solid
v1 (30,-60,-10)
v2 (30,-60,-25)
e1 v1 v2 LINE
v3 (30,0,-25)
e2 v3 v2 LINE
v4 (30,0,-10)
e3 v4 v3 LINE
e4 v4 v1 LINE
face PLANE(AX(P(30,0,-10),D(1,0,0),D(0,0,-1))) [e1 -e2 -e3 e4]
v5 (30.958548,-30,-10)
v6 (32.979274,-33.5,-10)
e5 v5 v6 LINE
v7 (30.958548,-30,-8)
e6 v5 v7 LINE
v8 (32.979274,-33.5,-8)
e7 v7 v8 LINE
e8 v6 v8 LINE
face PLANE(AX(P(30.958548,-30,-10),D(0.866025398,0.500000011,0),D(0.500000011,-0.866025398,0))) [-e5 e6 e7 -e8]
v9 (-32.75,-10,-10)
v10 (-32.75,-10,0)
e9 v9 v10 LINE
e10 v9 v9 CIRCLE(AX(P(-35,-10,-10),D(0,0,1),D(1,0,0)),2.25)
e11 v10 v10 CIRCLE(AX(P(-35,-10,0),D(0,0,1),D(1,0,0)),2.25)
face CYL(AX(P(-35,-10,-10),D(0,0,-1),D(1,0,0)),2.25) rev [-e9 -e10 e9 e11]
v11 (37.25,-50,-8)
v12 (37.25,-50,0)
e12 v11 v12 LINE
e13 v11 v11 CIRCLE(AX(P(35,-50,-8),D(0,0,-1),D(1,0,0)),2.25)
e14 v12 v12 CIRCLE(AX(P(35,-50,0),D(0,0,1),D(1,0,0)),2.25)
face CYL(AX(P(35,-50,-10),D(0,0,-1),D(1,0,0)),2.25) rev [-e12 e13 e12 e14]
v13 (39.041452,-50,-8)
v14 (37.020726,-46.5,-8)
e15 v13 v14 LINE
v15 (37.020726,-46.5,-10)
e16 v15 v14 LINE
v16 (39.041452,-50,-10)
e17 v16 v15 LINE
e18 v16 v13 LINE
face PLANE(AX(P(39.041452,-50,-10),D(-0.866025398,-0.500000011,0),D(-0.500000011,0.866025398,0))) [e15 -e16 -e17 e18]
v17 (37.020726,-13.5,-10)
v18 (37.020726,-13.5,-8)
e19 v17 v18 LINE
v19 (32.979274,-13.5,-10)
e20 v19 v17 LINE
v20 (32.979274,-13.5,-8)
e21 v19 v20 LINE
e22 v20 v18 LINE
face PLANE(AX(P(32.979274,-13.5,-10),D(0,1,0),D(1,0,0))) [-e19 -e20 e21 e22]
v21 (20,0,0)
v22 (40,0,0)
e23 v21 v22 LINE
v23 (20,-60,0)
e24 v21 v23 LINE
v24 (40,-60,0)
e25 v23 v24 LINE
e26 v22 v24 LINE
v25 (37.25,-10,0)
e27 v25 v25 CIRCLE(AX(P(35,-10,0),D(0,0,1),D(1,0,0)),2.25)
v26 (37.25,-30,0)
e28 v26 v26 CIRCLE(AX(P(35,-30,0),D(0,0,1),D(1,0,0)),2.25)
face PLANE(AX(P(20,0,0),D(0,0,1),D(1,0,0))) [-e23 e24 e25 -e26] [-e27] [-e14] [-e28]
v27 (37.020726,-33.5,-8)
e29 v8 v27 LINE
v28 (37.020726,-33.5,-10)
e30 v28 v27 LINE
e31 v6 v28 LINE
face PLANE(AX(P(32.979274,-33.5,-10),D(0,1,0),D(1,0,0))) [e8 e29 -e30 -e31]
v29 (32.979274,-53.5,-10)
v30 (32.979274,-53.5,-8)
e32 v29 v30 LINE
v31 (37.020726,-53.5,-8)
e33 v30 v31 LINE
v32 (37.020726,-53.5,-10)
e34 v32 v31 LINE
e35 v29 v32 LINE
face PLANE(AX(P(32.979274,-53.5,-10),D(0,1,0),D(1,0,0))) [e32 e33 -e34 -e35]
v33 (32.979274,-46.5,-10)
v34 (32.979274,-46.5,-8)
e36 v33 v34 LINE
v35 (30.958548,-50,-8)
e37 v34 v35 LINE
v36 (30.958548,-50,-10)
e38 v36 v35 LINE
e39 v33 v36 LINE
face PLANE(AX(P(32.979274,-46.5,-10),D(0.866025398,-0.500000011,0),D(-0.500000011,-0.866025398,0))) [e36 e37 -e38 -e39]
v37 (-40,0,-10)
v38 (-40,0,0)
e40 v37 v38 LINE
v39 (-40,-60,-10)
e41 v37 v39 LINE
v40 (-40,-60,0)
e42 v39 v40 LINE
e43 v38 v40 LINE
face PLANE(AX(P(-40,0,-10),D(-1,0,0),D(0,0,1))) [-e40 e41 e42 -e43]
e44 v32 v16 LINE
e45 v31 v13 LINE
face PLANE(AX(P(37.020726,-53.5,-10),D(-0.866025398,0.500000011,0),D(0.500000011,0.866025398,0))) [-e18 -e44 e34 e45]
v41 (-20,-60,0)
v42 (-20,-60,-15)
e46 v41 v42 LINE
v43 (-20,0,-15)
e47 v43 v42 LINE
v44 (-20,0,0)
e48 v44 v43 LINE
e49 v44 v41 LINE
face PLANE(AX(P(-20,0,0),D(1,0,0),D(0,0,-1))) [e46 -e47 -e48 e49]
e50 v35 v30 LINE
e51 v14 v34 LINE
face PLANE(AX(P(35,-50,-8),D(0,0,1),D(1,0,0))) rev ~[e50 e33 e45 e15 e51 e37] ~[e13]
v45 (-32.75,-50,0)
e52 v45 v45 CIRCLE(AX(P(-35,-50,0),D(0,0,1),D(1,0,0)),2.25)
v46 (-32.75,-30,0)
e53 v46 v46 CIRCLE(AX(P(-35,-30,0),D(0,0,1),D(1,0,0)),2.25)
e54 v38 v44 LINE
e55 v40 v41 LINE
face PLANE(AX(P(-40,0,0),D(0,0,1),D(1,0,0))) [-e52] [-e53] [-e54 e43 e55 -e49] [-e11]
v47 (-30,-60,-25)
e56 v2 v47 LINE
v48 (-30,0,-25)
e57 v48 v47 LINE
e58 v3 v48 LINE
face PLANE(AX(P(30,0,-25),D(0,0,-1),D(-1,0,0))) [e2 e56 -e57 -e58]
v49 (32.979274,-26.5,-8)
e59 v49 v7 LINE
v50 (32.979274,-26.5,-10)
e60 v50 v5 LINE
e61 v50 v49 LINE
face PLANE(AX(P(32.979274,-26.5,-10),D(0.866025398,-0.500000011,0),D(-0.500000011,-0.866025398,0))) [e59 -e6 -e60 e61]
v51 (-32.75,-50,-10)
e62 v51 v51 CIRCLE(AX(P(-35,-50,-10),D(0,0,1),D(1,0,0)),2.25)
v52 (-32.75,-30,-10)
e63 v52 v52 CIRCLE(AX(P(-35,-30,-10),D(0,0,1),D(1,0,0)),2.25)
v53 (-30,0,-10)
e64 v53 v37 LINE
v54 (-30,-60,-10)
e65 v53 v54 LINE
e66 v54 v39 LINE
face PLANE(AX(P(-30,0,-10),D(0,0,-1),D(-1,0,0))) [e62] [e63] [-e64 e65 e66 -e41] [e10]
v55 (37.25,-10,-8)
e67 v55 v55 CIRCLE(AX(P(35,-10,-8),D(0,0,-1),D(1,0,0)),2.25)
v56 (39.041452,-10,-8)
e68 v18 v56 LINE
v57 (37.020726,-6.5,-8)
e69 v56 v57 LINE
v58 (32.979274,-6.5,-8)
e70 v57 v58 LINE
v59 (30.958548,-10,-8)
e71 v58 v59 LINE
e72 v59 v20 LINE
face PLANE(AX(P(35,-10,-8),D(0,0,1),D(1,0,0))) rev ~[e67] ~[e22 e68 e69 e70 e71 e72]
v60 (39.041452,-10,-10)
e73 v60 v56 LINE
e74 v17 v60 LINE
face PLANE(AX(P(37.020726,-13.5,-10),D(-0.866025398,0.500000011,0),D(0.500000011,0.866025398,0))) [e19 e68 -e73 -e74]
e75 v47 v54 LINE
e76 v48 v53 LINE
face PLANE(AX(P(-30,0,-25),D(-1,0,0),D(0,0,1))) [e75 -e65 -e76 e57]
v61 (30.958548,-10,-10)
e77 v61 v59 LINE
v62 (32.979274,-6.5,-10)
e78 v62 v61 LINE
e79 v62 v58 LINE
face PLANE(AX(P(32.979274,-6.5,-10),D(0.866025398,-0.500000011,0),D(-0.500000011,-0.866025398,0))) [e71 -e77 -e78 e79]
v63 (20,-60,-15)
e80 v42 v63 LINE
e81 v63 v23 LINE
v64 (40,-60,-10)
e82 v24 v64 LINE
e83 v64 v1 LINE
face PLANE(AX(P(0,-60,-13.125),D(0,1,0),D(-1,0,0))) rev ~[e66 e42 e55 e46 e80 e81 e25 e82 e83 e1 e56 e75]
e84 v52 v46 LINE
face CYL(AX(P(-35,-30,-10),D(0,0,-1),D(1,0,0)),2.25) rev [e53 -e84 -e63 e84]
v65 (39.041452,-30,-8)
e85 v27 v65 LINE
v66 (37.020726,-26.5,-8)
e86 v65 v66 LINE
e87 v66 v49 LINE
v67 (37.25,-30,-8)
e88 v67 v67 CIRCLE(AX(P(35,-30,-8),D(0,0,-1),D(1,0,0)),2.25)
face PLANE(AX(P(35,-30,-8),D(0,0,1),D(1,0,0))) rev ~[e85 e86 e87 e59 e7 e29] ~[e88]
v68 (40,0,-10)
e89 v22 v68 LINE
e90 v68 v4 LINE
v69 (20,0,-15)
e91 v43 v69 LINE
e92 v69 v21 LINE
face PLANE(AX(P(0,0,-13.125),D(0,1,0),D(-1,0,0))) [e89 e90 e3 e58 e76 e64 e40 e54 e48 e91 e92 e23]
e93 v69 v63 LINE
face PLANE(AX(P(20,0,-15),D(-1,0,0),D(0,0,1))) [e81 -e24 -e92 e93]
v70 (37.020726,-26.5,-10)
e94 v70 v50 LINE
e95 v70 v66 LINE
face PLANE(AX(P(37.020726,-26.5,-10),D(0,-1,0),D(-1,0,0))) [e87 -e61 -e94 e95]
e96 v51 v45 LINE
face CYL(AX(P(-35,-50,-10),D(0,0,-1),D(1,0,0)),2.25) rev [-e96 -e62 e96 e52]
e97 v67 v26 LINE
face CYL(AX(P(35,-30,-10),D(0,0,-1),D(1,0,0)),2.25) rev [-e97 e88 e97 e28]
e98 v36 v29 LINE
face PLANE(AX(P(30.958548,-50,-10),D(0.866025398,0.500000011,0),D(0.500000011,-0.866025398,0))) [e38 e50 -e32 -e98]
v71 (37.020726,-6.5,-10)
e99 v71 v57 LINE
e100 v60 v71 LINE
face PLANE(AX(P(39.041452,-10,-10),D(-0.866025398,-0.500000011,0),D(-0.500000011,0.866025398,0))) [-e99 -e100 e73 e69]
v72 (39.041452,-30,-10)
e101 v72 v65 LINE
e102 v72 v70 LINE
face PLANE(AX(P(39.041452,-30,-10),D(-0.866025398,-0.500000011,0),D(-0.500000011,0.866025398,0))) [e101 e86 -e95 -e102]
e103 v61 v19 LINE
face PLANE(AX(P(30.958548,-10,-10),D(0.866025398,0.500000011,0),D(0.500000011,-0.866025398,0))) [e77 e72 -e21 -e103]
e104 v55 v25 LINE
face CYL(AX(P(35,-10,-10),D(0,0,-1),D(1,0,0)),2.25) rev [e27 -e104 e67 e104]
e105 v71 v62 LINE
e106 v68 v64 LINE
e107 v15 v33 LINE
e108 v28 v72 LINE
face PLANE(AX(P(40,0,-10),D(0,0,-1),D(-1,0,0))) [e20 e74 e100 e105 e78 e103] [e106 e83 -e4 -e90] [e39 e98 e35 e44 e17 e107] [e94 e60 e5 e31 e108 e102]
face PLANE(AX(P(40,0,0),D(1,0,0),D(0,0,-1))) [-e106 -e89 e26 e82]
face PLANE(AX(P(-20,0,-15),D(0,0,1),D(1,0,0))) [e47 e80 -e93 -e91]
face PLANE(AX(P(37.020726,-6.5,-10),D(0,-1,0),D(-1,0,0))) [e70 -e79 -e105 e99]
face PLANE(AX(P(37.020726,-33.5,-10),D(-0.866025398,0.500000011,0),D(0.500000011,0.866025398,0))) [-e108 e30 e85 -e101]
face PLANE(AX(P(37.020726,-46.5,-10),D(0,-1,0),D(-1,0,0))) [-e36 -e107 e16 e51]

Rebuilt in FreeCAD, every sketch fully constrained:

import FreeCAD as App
import Part
import Sketcher
Q = App.Units.Quantity

doc = App.newDocument("Part")
body = doc.addObject("PartDesign::Body", "Body")

# Sketch on XZ plane
sketch1 = body.newObject("Sketcher::SketchObject", "Sketch")
sketch1.AttachmentSupport = (doc.getObject("XZ_Plane"), [""])
sketch1.MapMode = "FlatFace"
sketch1.addGeometry([
    Part.LineSegment(App.Vector(-20, 0, 0), App.Vector(-40, 0, 0)),  # 0
    Part.LineSegment(App.Vector(-40, 0, 0), App.Vector(-40, -10, 0)),  # 1
    Part.LineSegment(App.Vector(-40, -10, 0), App.Vector(-30, -10, 0)),  # 2
    Part.LineSegment(App.Vector(-30, -10, 0), App.Vector(-30, -25, 0)),  # 3
    Part.LineSegment(App.Vector(-30, -25, 0), App.Vector(30, -25, 0)),  # 4
    Part.LineSegment(App.Vector(30, -25, 0), App.Vector(30, -10, 0)),  # 5
    Part.LineSegment(App.Vector(30, -10, 0), App.Vector(40, -10, 0)),  # 6
    Part.LineSegment(App.Vector(40, -10, 0), App.Vector(40, 0, 0)),  # 7
    Part.LineSegment(App.Vector(40, 0, 0), App.Vector(20, 0, 0)),  # 8
    Part.LineSegment(App.Vector(20, 0, 0), App.Vector(20, -15, 0)),  # 9
    Part.LineSegment(App.Vector(20, -15, 0), App.Vector(-20, -15, 0)),  # 10
    Part.LineSegment(App.Vector(-20, -15, 0), App.Vector(-20, 0, 0)),  # 11
], False)
sketch1.addConstraint([
    Sketcher.Constraint("Coincident", 0, 2, 1, 1),
    Sketcher.Constraint("Coincident", 1, 2, 2, 1),
    Sketcher.Constraint("Coincident", 2, 2, 3, 1),
    Sketcher.Constraint("Coincident", 3, 2, 4, 1),
    Sketcher.Constraint("Coincident", 4, 2, 5, 1),
    Sketcher.Constraint("Coincident", 5, 2, 6, 1),
    Sketcher.Constraint("Coincident", 6, 2, 7, 1),
    Sketcher.Constraint("Coincident", 7, 2, 8, 1),
    Sketcher.Constraint("Coincident", 8, 2, 9, 1),
    Sketcher.Constraint("Coincident", 9, 2, 10, 1),
    Sketcher.Constraint("Coincident", 10, 2, 11, 1),
    Sketcher.Constraint("Coincident", 11, 2, 0, 1),
    Sketcher.Constraint("Horizontal", 0),
    Sketcher.Constraint("Vertical", 1),
    Sketcher.Constraint("Horizontal", 2),
    Sketcher.Constraint("Vertical", 3),
    Sketcher.Constraint("Horizontal", 4),
    Sketcher.Constraint("Vertical", 5),
    Sketcher.Constraint("Horizontal", 6),
    Sketcher.Constraint("Vertical", 7),
    Sketcher.Constraint("Horizontal", 8),
    Sketcher.Constraint("Vertical", 9),
    Sketcher.Constraint("Horizontal", 10),
    Sketcher.Constraint("Vertical", 11),
    Sketcher.Constraint("Symmetric", 0, 2, 7, 2, -1, 1),
    Sketcher.Constraint("Symmetric", 2, 2, 5, 2, -2),
    Sketcher.Constraint("Symmetric", 8, 2, 11, 2, -2),
    Sketcher.Constraint("Equal", 6, 1),
    Sketcher.Constraint("Equal", 5, 9),
    Sketcher.Constraint("DistanceX", 0, 2, 0, 1, 20.0),
    Sketcher.Constraint("DistanceX", 2, 1, 2, 2, 10.0),
    Sketcher.Constraint("DistanceX", 4, 1, 4, 2, 60.0),
    Sketcher.Constraint("DistanceY", 3, 2, 3, 1, 15.0),
])
pad1 = body.newObject("PartDesign::Pad", "Pad")
pad1.Profile = sketch1
pad1.Length = 60

# Sketch on XY plane
sketch2 = body.newObject("Sketcher::SketchObject", "Sketch001")
sketch2.AttachmentSupport = (doc.getObject("XY_Plane"), [""])
sketch2.MapMode = "FlatFace"
sketch2.AttachmentOffset = App.Placement(App.Vector(0, 0, -10), App.Rotation())
sketch2.addGeometry([
    Part.Circle(App.Vector(-35, -10, 0), App.Vector(0, 0, 1), 2.25),  # 0
    Part.Circle(App.Vector(35, -10, 0), App.Vector(0, 0, 1), 2.25),  # 1
    Part.Circle(App.Vector(-35, -30, 0), App.Vector(0, 0, 1), 2.25),  # 2
    Part.Circle(App.Vector(35, -30, 0), App.Vector(0, 0, 1), 2.25),  # 3
    Part.Circle(App.Vector(-35, -50, 0), App.Vector(0, 0, 1), 2.25),  # 4
    Part.Circle(App.Vector(-35, -70, 0), App.Vector(0, 0, 1), 2.25),  # 5
    Part.Circle(App.Vector(35, -50, 0), App.Vector(0, 0, 1), 2.25),  # 6
    Part.Circle(App.Vector(35, -70, 0), App.Vector(0, 0, 1), 2.25),  # 7
], False)
sketch2.addConstraint([
    Sketcher.Constraint("Equal", 0, 1),
    Sketcher.Constraint("Equal", 1, 2),
    Sketcher.Constraint("Equal", 2, 3),
    Sketcher.Constraint("Equal", 3, 4),
    Sketcher.Constraint("Equal", 4, 5),
    Sketcher.Constraint("Equal", 5, 6),
    Sketcher.Constraint("Equal", 6, 7),
    Sketcher.Constraint("Symmetric", 0, 3, 1, 3, -2),
    Sketcher.Constraint("Symmetric", 2, 3, 3, 3, -2),
    Sketcher.Constraint("Symmetric", 4, 3, 6, 3, -2),
    Sketcher.Constraint("Symmetric", 5, 3, 7, 3, -2),
    Sketcher.Constraint("Vertical", 0, 3, 2, 3),
    Sketcher.Constraint("Vertical", 2, 3, 4, 3),
    Sketcher.Constraint("Vertical", 4, 3, 5, 3),
    Sketcher.Constraint("Diameter", 0, 4.5),
    Sketcher.Constraint("DistanceX", 0, 3, -1, 1, 35.0),
    Sketcher.Constraint("DistanceY", 0, 3, -1, 1, 10.0),
    Sketcher.Constraint("DistanceY", 2, 3, -1, 1, 30.0),
    Sketcher.Constraint("DistanceY", 4, 3, -1, 1, 50.0),
    Sketcher.Constraint("DistanceY", 5, 3, -1, 1, 70.0),
])
pocket1 = body.newObject("PartDesign::Pocket", "Pocket")
pocket1.Profile = sketch2
pocket1.Length = 10
pocket1.Reversed = True

# Sketch on XY plane
sketch3 = body.newObject("Sketcher::SketchObject", "Sketch002")
sketch3.AttachmentSupport = (doc.getObject("XY_Plane"), [""])
sketch3.MapMode = "FlatFace"
sketch3.AttachmentOffset = App.Placement(App.Vector(0, 0, -10), App.Rotation())
sketch3.addGeometry([
    Part.LineSegment(App.Vector(39.041452, -10, 0), App.Vector(37.020726, -6.5, 0)),  # 0
    Part.LineSegment(App.Vector(37.020726, -6.5, 0), App.Vector(32.979274, -6.5, 0)),  # 1
    Part.LineSegment(App.Vector(32.979274, -6.5, 0), App.Vector(30.958548, -10, 0)),  # 2
    Part.LineSegment(App.Vector(30.958548, -10, 0), App.Vector(32.979274, -13.5, 0)),  # 3
    Part.LineSegment(App.Vector(32.979274, -13.5, 0), App.Vector(37.020726, -13.5, 0)),  # 4
    Part.LineSegment(App.Vector(37.020726, -13.5, 0), App.Vector(39.041452, -10, 0)),  # 5
    Part.LineSegment(App.Vector(39.041452, -30, 0), App.Vector(37.020726, -26.5, 0)),  # 6
    Part.LineSegment(App.Vector(37.020726, -26.5, 0), App.Vector(32.979274, -26.5, 0)),  # 7
    Part.LineSegment(App.Vector(32.979274, -26.5, 0), App.Vector(30.958548, -30, 0)),  # 8
    Part.LineSegment(App.Vector(30.958548, -30, 0), App.Vector(32.979274, -33.5, 0)),  # 9
    Part.LineSegment(App.Vector(32.979274, -33.5, 0), App.Vector(37.020726, -33.5, 0)),  # 10
    Part.LineSegment(App.Vector(37.020726, -33.5, 0), App.Vector(39.041452, -30, 0)),  # 11
    Part.LineSegment(App.Vector(39.041452, -50, 0), App.Vector(37.020726, -46.5, 0)),  # 12
    Part.LineSegment(App.Vector(37.020726, -46.5, 0), App.Vector(32.979274, -46.5, 0)),  # 13
    Part.LineSegment(App.Vector(32.979274, -46.5, 0), App.Vector(30.958548, -50, 0)),  # 14
    Part.LineSegment(App.Vector(30.958548, -50, 0), App.Vector(32.979274, -53.5, 0)),  # 15
    Part.LineSegment(App.Vector(32.979274, -53.5, 0), App.Vector(37.020726, -53.5, 0)),  # 16
    Part.LineSegment(App.Vector(37.020726, -53.5, 0), App.Vector(39.041452, -50, 0)),  # 17
    Part.LineSegment(App.Vector(39.041452, -70, 0), App.Vector(37.020726, -66.5, 0)),  # 18
    Part.LineSegment(App.Vector(37.020726, -66.5, 0), App.Vector(32.979274, -66.5, 0)),  # 19
    Part.LineSegment(App.Vector(32.979274, -66.5, 0), App.Vector(30.958548, -70, 0)),  # 20
    Part.LineSegment(App.Vector(30.958548, -70, 0), App.Vector(32.979274, -73.5, 0)),  # 21
    Part.LineSegment(App.Vector(32.979274, -73.5, 0), App.Vector(37.020726, -73.5, 0)),  # 22
    Part.LineSegment(App.Vector(37.020726, -73.5, 0), App.Vector(39.041452, -70, 0)),  # 23
], False)
sketch3.addConstraint([
    Sketcher.Constraint("Coincident", 0, 2, 1, 1),
    Sketcher.Constraint("Coincident", 1, 2, 2, 1),
    Sketcher.Constraint("Coincident", 2, 2, 3, 1),
    Sketcher.Constraint("Coincident", 3, 2, 4, 1),
    Sketcher.Constraint("Coincident", 4, 2, 5, 1),
    Sketcher.Constraint("Coincident", 5, 2, 0, 1),
    Sketcher.Constraint("Coincident", 6, 2, 7, 1),
    Sketcher.Constraint("Coincident", 7, 2, 8, 1),
    Sketcher.Constraint("Coincident", 8, 2, 9, 1),
    Sketcher.Constraint("Coincident", 9, 2, 10, 1),
    Sketcher.Constraint("Coincident", 10, 2, 11, 1),
    Sketcher.Constraint("Coincident", 11, 2, 6, 1),
    Sketcher.Constraint("Coincident", 12, 2, 13, 1),
    Sketcher.Constraint("Coincident", 13, 2, 14, 1),
    Sketcher.Constraint("Coincident", 14, 2, 15, 1),
    Sketcher.Constraint("Coincident", 15, 2, 16, 1),
    Sketcher.Constraint("Coincident", 16, 2, 17, 1),
    Sketcher.Constraint("Coincident", 17, 2, 12, 1),
    Sketcher.Constraint("Coincident", 18, 2, 19, 1),
    Sketcher.Constraint("Coincident", 19, 2, 20, 1),
    Sketcher.Constraint("Coincident", 20, 2, 21, 1),
    Sketcher.Constraint("Coincident", 21, 2, 22, 1),
    Sketcher.Constraint("Coincident", 22, 2, 23, 1),
    Sketcher.Constraint("Coincident", 23, 2, 18, 1),
    Sketcher.Constraint("Horizontal", 1),
    Sketcher.Constraint("Horizontal", 4),
    Sketcher.Constraint("Horizontal", 7),
    Sketcher.Constraint("Horizontal", 10),
    Sketcher.Constraint("Horizontal", 13),
    Sketcher.Constraint("Horizontal", 16),
    Sketcher.Constraint("Horizontal", 19),
    Sketcher.Constraint("Horizontal", 22),
    Sketcher.Constraint("Parallel", 0, 3),
    Sketcher.Constraint("Parallel", 2, 5),
    Sketcher.Constraint("Parallel", 3, 6),
    Sketcher.Constraint("Parallel", 5, 8),
    Sketcher.Constraint("Parallel", 6, 9),
    Sketcher.Constraint("Parallel", 8, 11),
    Sketcher.Constraint("Parallel", 9, 12),
    Sketcher.Constraint("Parallel", 11, 14),
    Sketcher.Constraint("Parallel", 12, 15),
    Sketcher.Constraint("Parallel", 14, 17),
    Sketcher.Constraint("Parallel", 15, 18),
    Sketcher.Constraint("Parallel", 17, 20),
    Sketcher.Constraint("Parallel", 18, 21),
    Sketcher.Constraint("Parallel", 20, 23),
    Sketcher.Constraint("Horizontal", 2, 2, 5, 2),
    Sketcher.Constraint("Horizontal", 8, 2, 11, 2),
    Sketcher.Constraint("Horizontal", 14, 2, 17, 2),
    Sketcher.Constraint("Horizontal", 20, 2, 23, 2),
    Sketcher.Constraint("Vertical", 1, 2, 3, 2),
    Sketcher.Constraint("Vertical", 0, 2, 4, 2),
    Sketcher.Constraint("Vertical", 4, 2, 6, 2),
    Sketcher.Constraint("Vertical", 3, 2, 7, 2),
    Sketcher.Constraint("Vertical", 2, 2, 8, 2),
    Sketcher.Constraint("Vertical", 7, 2, 9, 2),
    Sketcher.Constraint("Vertical", 10, 2, 12, 2),
    Sketcher.Constraint("Vertical", 9, 2, 13, 2),
    Sketcher.Constraint("Vertical", 8, 2, 14, 2),
    Sketcher.Constraint("Vertical", 13, 2, 15, 2),
    Sketcher.Constraint("Vertical", 16, 2, 18, 2),
    Sketcher.Constraint("Vertical", 15, 2, 19, 2),
    Sketcher.Constraint("Vertical", 14, 2, 20, 2),
    Sketcher.Constraint("Vertical", 19, 2, 21, 2),
    Sketcher.Constraint("Angle", 0, Q("120.000001 deg")),
    Sketcher.Constraint("DistanceY", 2, 2, -1, 1, 10.0),
    Sketcher.Constraint("DistanceY", 8, 2, -1, 1, 30.0),
    Sketcher.Constraint("DistanceY", 14, 2, -1, 1, 50.0),
    Sketcher.Constraint("DistanceY", 20, 2, -1, 1, 70.0),
    Sketcher.Constraint("DistanceY", 3, 2, 1, 2, 7.0),
    Sketcher.Constraint("DistanceX", 1, 2, 1, 1, 4.041452),
    Sketcher.Constraint("DistanceX", -1, 1, 2, 2, 30.958548),
])
pocket2 = body.newObject("PartDesign::Pocket", "Pocket001")
pocket2.Profile = sketch3
pocket2.Length = 2
pocket2.Reversed = True

doc.recompute()
